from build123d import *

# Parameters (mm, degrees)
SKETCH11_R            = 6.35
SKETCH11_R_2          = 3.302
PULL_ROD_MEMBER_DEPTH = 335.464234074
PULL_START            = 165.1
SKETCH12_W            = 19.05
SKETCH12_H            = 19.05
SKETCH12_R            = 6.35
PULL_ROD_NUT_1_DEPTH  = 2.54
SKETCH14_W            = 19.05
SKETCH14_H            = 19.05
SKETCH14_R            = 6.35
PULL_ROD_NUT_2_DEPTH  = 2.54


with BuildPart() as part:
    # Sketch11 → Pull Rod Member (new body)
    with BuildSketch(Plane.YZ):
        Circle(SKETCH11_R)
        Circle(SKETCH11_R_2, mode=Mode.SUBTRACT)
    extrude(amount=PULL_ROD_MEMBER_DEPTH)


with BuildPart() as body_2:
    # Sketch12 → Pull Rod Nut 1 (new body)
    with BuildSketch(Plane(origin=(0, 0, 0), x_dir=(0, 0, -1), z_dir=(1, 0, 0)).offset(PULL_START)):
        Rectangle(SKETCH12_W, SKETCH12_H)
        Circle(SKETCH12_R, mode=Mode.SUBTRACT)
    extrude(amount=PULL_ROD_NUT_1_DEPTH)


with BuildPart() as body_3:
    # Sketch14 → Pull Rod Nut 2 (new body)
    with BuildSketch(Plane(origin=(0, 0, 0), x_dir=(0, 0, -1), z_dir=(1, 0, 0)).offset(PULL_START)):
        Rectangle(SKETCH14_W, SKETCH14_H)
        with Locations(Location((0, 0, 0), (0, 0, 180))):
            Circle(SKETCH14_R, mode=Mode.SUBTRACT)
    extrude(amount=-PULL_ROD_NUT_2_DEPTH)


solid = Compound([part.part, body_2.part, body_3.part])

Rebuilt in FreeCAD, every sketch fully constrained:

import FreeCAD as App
import Part
import Sketcher

V = App.Vector
Q = App.Units.Quantity


def add_polygon(sketch, points):
    """Adds a closed chain of lines whose ends are joined by coincident constraints."""
    first, n = sketch.GeometryCount, len(points)
    for a, b in zip(points, points[1:] + points[:1]):
        sketch.addGeometry(Part.LineSegment(App.Vector(*a, 0), App.Vector(*b, 0)), False)
    for i in range(n):
        sketch.addConstraint(Sketcher.Constraint("Coincident", first + i, 2, first + (i + 1) % n, 1))

doc = App.newDocument("Part")
body = doc.addObject("PartDesign::Body", "Body")

# Sketch on YZ plane
sketch1 = doc.addObject("Sketcher::SketchObject", "Sketch")
body.addObject(sketch1)
sketch1.AttachmentSupport = (doc.YZ_Plane, [""])
sketch1.MapMode = "FlatFace"
sketch1.addGeometry([
    Part.Circle(V(0, 0, 0), V(0, 0, 1), 6.35),
    Part.Circle(V(0, 0, 0), V(0, 0, 1), 3.302),
], False)
sketch1.addConstraint([
    Sketcher.Constraint("Coincident", 0, 3, -1, 1),
    Sketcher.Constraint("Coincident", 1, 3, -1, 1),
    Sketcher.Constraint("Diameter", 0, Q("0.5 in")),
    Sketcher.Constraint("Diameter", 1, Q("0.26 in")),
])
pad1 = doc.addObject("PartDesign::Pad", "Pad")
body.addObject(pad1)
pad1.Profile = sketch1
pad1.Length = 335.464234
body2 = doc.addObject("PartDesign::Body", "Body001")

# Sketch on YZ plane
sketch2 = doc.addObject("Sketcher::SketchObject", "Sketch001")
body2.addObject(sketch2)
sketch2.AttachmentSupport = (doc.getObject("YZ_Plane001"), [""])
sketch2.MapMode = "FlatFace"
sketch2.AttachmentOffset = App.Placement(V(0, 0, 6.5 * 25.4), App.Rotation())
add_polygon(sketch2, [(9.525, 9.525), (-9.525, 9.525), (-9.525, -9.525), (9.525, -9.525)])  # lines 0-3
sketch2.addGeometry(Part.Circle(V(0, 0, 0), V(0, 0, 1), 6.35), False)  # 4
sketch2.addConstraint([
    Sketcher.Constraint("Horizontal", 0),
    Sketcher.Constraint("Vertical", 1),
    Sketcher.Constraint("Horizontal", 2),
    Sketcher.Constraint("Vertical", 3),
    Sketcher.Constraint("Coincident", 4, 3, -1, 1),
    Sketcher.Constraint("Symmetric", 0, 2, 2, 2, -1, 1),
    Sketcher.Constraint("Equal", 2, 1),
    Sketcher.Constraint("Diameter", 4, Q("0.5 in")),
    Sketcher.Constraint("DistanceX", 0, 2, 0, 1, Q("0.75 in")),
])
pad2 = doc.addObject("PartDesign::Pad", "Pad001")
body2.addObject(pad2)
pad2.Profile = sketch2
pad2.Length = Q("0.1 in")
body3 = doc.addObject("PartDesign::Body", "Body002")

# Sketch on YZ plane
sketch3 = doc.addObject("Sketcher::SketchObject", "Sketch002")
body3.addObject(sketch3)
sketch3.AttachmentSupport = (doc.getObject("YZ_Plane002"), [""])
sketch3.MapMode = "FlatFace"
sketch3.AttachmentOffset = App.Placement(V(0, 0, 6.5 * 25.4), App.Rotation())
add_polygon(sketch3, [(9.525, 9.525), (-9.525, 9.525), (-9.525, -9.525), (9.525, -9.525)])  # lines 0-3
sketch3.addGeometry(Part.Circle(V(0, 0, 0), V(0, 0, 1), 6.35), False)  # 4
sketch3.addConstraint([
    Sketcher.Constraint("Horizontal", 0),
    Sketcher.Constraint("Vertical", 1),
    Sketcher.Constraint("Horizontal", 2),
    Sketcher.Constraint("Vertical", 3),
    Sketcher.Constraint("Coincident", 4, 3, -1, 1),
    Sketcher.Constraint("Symmetric", 0, 2, 2, 2, -1, 1),
    Sketcher.Constraint("Equal", 2, 1),
    Sketcher.Constraint("Diameter", 4, Q("0.5 in")),
    Sketcher.Constraint("DistanceX", 0, 2, 0, 1, Q("0.75 in")),
])
pad3 = doc.addObject("PartDesign::Pad", "Pad002")
body3.addObject(pad3)
pad3.Profile = sketch3
pad3.Length = Q("0.1 in")
pad3.Reversed = True

doc.recompute()
